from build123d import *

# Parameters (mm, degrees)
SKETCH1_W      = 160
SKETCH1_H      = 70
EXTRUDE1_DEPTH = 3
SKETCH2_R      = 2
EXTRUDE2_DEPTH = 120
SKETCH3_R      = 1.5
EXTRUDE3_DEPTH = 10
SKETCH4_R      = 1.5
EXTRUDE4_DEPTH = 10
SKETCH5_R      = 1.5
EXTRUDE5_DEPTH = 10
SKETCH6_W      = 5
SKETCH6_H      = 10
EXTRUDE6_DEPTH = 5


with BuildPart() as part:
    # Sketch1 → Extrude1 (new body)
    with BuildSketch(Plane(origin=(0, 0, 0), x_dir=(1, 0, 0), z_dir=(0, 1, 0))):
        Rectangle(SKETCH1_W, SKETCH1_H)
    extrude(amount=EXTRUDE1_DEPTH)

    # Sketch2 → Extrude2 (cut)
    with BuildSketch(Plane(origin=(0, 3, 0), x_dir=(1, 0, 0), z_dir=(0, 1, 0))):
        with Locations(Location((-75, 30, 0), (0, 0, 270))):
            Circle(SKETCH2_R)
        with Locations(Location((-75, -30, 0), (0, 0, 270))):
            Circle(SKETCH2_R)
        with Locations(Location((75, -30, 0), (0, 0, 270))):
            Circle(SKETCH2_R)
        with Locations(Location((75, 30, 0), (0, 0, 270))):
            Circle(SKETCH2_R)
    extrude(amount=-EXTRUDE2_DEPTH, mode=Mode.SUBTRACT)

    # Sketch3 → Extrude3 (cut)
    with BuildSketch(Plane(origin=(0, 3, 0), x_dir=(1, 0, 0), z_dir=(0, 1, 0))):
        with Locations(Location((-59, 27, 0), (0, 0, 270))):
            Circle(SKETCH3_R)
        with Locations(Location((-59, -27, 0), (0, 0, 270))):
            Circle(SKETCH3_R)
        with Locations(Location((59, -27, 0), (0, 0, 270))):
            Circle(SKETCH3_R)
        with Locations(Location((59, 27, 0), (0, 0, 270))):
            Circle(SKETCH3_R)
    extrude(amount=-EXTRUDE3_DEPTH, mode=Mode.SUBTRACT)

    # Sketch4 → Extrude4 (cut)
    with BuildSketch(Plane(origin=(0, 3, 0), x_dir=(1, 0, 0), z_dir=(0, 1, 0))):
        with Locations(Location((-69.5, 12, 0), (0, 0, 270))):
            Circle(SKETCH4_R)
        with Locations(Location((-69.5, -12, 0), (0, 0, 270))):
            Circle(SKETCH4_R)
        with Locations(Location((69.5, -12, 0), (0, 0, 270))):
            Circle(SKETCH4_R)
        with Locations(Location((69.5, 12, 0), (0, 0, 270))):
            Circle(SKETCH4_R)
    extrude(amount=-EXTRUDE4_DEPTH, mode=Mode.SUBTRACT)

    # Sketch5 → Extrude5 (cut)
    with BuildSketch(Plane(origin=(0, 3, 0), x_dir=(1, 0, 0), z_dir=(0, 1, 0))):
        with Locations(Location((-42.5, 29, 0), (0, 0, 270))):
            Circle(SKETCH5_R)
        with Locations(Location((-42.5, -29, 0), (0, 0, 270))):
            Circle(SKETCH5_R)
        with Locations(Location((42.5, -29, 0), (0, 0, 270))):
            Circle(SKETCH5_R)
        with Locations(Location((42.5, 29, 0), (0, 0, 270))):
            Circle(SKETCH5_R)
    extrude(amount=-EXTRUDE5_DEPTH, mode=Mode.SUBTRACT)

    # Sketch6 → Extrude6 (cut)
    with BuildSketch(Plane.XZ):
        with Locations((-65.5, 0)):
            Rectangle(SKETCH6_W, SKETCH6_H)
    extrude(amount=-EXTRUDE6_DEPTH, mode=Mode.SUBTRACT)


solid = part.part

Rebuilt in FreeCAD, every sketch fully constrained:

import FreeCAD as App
import Part
import Sketcher

V = App.Vector

doc = App.newDocument("Part")
body = doc.addObject("PartDesign::Body", "Body")

sketch1 = body.newObject("Sketcher::SketchObject", "Sketch")
sketch1.AttachmentSupport = (doc.getObject("XZ_Plane"), [""])
sketch1.MapMode = "FlatFace"
sketch1.addGeometry([
    Part.LineSegment(V(-80, -35, 0), V(-80, 35, 0)),
    Part.LineSegment(V(-80, 35, 0), V(80, 35, 0)),
    Part.LineSegment(V(80, 35, 0), V(80, -35, 0)),
    Part.LineSegment(V(80, -35, 0), V(-80, -35, 0)),
], False)
sketch1.addConstraint([
    Sketcher.Constraint("Coincident", 0, 2, 1, 1),
    Sketcher.Constraint("Coincident", 1, 2, 2, 1),
    Sketcher.Constraint("Coincident", 2, 2, 3, 1),
    Sketcher.Constraint("Coincident", 3, 2, 0, 1),
    Sketcher.Constraint("Vertical", 0),
    Sketcher.Constraint("Horizontal", 1),
    Sketcher.Constraint("Vertical", 2),
    Sketcher.Constraint("Horizontal", 3),
    Sketcher.Constraint("Symmetric", 0, 2, 2, 2, -1, 1),
    Sketcher.Constraint("DistanceX", 1, 1, 1, 2, 160.0),
    Sketcher.Constraint("DistanceY", 0, 1, 0, 2, 70.0),
])
pad1 = body.newObject("PartDesign::Pad", "Pad")
pad1.Profile = sketch1
pad1.Length = 3
pad1.Reversed = True

sketch2 = body.newObject("Sketcher::SketchObject", "Sketch001")
sketch2.AttachmentSupport = (doc.getObject("XZ_Plane"), [""])
sketch2.MapMode = "FlatFace"
sketch2.AttachmentOffset = App.Placement(V(0, 0, -3), App.Rotation())
sketch2.addGeometry([
    Part.Circle(V(-75, -30, 0), V(0, 0, 1), 2),
    Part.Circle(V(-75, 30, 0), V(0, 0, 1), 2),
    Part.Circle(V(75, 30, 0), V(0, 0, 1), 2),
    Part.Circle(V(75, -30, 0), V(0, 0, 1), 2),
], False)
sketch2.addConstraint([
    Sketcher.Constraint("Equal", 0, 1),
    Sketcher.Constraint("Equal", 1, 2),
    Sketcher.Constraint("Equal", 2, 3),
    Sketcher.Constraint("Symmetric", 0, 3, 2, 3, -1, 1),
    Sketcher.Constraint("Symmetric", 1, 3, 3, 3, -1, 1),
    Sketcher.Constraint("Symmetric", 1, 3, 2, 3, -2),
    Sketcher.Constraint("Diameter", 0, 4.0),
    Sketcher.Constraint("DistanceX", 0, 3, -1, 1, 75.0),
    Sketcher.Constraint("DistanceY", 0, 3, -1, 1, 30.0),
])
pocket1 = body.newObject("PartDesign::Pocket", "Pocket")
pocket1.Profile = sketch2
pocket1.Length = 120
pocket1.Reversed = True

sketch3 = body.newObject("Sketcher::SketchObject", "Sketch002")
sketch3.AttachmentSupport = (doc.getObject("XZ_Plane"), [""])
sketch3.MapMode = "FlatFace"
sketch3.AttachmentOffset = App.Placement(V(0, 0, -3), App.Rotation())
sketch3.addGeometry([
    Part.Circle(V(-59, -27, 0), V(0, 0, 1), 1.5),
    Part.Circle(V(-59, 27, 0), V(0, 0, 1), 1.5),
    Part.Circle(V(59, 27, 0), V(0, 0, 1), 1.5),
    Part.Circle(V(59, -27, 0), V(0, 0, 1), 1.5),
], False)
sketch3.addConstraint([
    Sketcher.Constraint("Equal", 0, 1),
    Sketcher.Constraint("Equal", 1, 2),
    Sketcher.Constraint("Equal", 2, 3),
    Sketcher.Constraint("Symmetric", 0, 3, 2, 3, -1, 1),
    Sketcher.Constraint("Symmetric", 1, 3, 3, 3, -1, 1),
    Sketcher.Constraint("Symmetric", 1, 3, 2, 3, -2),
    Sketcher.Constraint("Diameter", 0, 3.0),
    Sketcher.Constraint("DistanceX", 0, 3, -1, 1, 59.0),
    Sketcher.Constraint("DistanceY", 0, 3, -1, 1, 27.0),
])
pocket2 = body.newObject("PartDesign::Pocket", "Pocket001")
pocket2.Profile = sketch3
pocket2.Length = 10
pocket2.Reversed = True

sketch4 = body.newObject("Sketcher::SketchObject", "Sketch003")
sketch4.AttachmentSupport = (doc.getObject("XZ_Plane"), [""])
sketch4.MapMode = "FlatFace"
sketch4.AttachmentOffset = App.Placement(V(0, 0, -3), App.Rotation())
sketch4.addGeometry([
    Part.Circle(V(-69.5, -12, 0), V(0, 0, 1), 1.5),
    Part.Circle(V(-69.5, 12, 0), V(0, 0, 1), 1.5),
    Part.Circle(V(69.5, 12, 0), V(0, 0, 1), 1.5),
    Part.Circle(V(69.5, -12, 0), V(0, 0, 1), 1.5),
], False)
sketch4.addConstraint([
    Sketcher.Constraint("Equal", 0, 1),
    Sketcher.Constraint("Equal", 1, 2),
    Sketcher.Constraint("Equal", 2, 3),
    Sketcher.Constraint("Symmetric", 0, 3, 2, 3, -1, 1),
    Sketcher.Constraint("Symmetric", 1, 3, 3, 3, -1, 1),
    Sketcher.Constraint("Symmetric", 1, 3, 2, 3, -2),
    Sketcher.Constraint("Diameter", 0, 3.0),
    Sketcher.Constraint("DistanceY", 0, 3, -1, 1, 12.0),
    Sketcher.Constraint("DistanceX", 1, 3, 2, 3, 139.0),
])
pocket3 = body.newObject("PartDesign::Pocket", "Pocket002")
pocket3.Profile = sketch4
pocket3.Length = 10
pocket3.Reversed = True

sketch5 = body.newObject("Sketcher::SketchObject", "Sketch004")
sketch5.AttachmentSupport = (doc.getObject("XZ_Plane"), [""])
sketch5.MapMode = "FlatFace"
sketch5.AttachmentOffset = App.Placement(V(0, 0, -3), App.Rotation())
sketch5.addGeometry([
    Part.Circle(V(-42.5, -29, 0), V(0, 0, 1), 1.5),
    Part.Circle(V(-42.5, 29, 0), V(0, 0, 1), 1.5),
    Part.Circle(V(42.5, 29, 0), V(0, 0, 1), 1.5),
    Part.Circle(V(42.5, -29, 0), V(0, 0, 1), 1.5),
], False)
sketch5.addConstraint([
    Sketcher.Constraint("Equal", 0, 1),
    Sketcher.Constraint("Equal", 1, 2),
    Sketcher.Constraint("Equal", 2, 3),
    Sketcher.Constraint("Symmetric", 0, 3, 2, 3, -1, 1),
    Sketcher.Constraint("Symmetric", 1, 3, 3, 3, -1, 1),
    Sketcher.Constraint("Symmetric", 1, 3, 2, 3, -2),
    Sketcher.Constraint("Diameter", 0, 3.0),
    Sketcher.Constraint("DistanceY", 0, 3, -1, 1, 29.0),
    Sketcher.Constraint("DistanceX", 1, 3, 2, 3, 85.0),
])
pocket4 = body.newObject("PartDesign::Pocket", "Pocket003")
pocket4.Profile = sketch5
pocket4.Length = 10
pocket4.Reversed = True

sketch6 = body.newObject("Sketcher::SketchObject", "Sketch005")
sketch6.AttachmentSupport = (doc.getObject("XZ_Plane"), [""])
sketch6.MapMode = "FlatFace"
sketch6.addGeometry([
    Part.LineSegment(V(-68, 5, 0), V(-68, -5, 0)),
    Part.LineSegment(V(-68, -5, 0), V(-63, -5, 0)),
    Part.LineSegment(V(-63, -5, 0), V(-63, 5, 0)),
    Part.LineSegment(V(-63, 5, 0), V(-68, 5, 0)),
], False)
sketch6.addConstraint([
    Sketcher.Constraint("Coincident", 0, 2, 1, 1),
    Sketcher.Constraint("Coincident", 1, 2, 2, 1),
    Sketcher.Constraint("Coincident", 2, 2, 3, 1),
    Sketcher.Constraint("Coincident", 3, 2, 0, 1),
    Sketcher.Constraint("Vertical", 0),
    Sketcher.Constraint("Horizontal", 1),
    Sketcher.Constraint("Vertical", 2),
    Sketcher.Constraint("Horizontal", 3),
    Sketcher.Constraint("DistanceX", 1, 1, 1, 2, 5.0),
    Sketcher.Constraint("DistanceY", 0, 2, 0, 1, 10.0),
    Sketcher.Constraint("DistanceX", 0, 2, -1, 1, 68.0),
    Sketcher.Constraint("DistanceY", 0, 2, -1, 1, 5.0),
])
pocket5 = body.newObject("PartDesign::Pocket", "Pocket004")
pocket5.Profile = sketch6
pocket5.Length = 5

doc.recompute()
